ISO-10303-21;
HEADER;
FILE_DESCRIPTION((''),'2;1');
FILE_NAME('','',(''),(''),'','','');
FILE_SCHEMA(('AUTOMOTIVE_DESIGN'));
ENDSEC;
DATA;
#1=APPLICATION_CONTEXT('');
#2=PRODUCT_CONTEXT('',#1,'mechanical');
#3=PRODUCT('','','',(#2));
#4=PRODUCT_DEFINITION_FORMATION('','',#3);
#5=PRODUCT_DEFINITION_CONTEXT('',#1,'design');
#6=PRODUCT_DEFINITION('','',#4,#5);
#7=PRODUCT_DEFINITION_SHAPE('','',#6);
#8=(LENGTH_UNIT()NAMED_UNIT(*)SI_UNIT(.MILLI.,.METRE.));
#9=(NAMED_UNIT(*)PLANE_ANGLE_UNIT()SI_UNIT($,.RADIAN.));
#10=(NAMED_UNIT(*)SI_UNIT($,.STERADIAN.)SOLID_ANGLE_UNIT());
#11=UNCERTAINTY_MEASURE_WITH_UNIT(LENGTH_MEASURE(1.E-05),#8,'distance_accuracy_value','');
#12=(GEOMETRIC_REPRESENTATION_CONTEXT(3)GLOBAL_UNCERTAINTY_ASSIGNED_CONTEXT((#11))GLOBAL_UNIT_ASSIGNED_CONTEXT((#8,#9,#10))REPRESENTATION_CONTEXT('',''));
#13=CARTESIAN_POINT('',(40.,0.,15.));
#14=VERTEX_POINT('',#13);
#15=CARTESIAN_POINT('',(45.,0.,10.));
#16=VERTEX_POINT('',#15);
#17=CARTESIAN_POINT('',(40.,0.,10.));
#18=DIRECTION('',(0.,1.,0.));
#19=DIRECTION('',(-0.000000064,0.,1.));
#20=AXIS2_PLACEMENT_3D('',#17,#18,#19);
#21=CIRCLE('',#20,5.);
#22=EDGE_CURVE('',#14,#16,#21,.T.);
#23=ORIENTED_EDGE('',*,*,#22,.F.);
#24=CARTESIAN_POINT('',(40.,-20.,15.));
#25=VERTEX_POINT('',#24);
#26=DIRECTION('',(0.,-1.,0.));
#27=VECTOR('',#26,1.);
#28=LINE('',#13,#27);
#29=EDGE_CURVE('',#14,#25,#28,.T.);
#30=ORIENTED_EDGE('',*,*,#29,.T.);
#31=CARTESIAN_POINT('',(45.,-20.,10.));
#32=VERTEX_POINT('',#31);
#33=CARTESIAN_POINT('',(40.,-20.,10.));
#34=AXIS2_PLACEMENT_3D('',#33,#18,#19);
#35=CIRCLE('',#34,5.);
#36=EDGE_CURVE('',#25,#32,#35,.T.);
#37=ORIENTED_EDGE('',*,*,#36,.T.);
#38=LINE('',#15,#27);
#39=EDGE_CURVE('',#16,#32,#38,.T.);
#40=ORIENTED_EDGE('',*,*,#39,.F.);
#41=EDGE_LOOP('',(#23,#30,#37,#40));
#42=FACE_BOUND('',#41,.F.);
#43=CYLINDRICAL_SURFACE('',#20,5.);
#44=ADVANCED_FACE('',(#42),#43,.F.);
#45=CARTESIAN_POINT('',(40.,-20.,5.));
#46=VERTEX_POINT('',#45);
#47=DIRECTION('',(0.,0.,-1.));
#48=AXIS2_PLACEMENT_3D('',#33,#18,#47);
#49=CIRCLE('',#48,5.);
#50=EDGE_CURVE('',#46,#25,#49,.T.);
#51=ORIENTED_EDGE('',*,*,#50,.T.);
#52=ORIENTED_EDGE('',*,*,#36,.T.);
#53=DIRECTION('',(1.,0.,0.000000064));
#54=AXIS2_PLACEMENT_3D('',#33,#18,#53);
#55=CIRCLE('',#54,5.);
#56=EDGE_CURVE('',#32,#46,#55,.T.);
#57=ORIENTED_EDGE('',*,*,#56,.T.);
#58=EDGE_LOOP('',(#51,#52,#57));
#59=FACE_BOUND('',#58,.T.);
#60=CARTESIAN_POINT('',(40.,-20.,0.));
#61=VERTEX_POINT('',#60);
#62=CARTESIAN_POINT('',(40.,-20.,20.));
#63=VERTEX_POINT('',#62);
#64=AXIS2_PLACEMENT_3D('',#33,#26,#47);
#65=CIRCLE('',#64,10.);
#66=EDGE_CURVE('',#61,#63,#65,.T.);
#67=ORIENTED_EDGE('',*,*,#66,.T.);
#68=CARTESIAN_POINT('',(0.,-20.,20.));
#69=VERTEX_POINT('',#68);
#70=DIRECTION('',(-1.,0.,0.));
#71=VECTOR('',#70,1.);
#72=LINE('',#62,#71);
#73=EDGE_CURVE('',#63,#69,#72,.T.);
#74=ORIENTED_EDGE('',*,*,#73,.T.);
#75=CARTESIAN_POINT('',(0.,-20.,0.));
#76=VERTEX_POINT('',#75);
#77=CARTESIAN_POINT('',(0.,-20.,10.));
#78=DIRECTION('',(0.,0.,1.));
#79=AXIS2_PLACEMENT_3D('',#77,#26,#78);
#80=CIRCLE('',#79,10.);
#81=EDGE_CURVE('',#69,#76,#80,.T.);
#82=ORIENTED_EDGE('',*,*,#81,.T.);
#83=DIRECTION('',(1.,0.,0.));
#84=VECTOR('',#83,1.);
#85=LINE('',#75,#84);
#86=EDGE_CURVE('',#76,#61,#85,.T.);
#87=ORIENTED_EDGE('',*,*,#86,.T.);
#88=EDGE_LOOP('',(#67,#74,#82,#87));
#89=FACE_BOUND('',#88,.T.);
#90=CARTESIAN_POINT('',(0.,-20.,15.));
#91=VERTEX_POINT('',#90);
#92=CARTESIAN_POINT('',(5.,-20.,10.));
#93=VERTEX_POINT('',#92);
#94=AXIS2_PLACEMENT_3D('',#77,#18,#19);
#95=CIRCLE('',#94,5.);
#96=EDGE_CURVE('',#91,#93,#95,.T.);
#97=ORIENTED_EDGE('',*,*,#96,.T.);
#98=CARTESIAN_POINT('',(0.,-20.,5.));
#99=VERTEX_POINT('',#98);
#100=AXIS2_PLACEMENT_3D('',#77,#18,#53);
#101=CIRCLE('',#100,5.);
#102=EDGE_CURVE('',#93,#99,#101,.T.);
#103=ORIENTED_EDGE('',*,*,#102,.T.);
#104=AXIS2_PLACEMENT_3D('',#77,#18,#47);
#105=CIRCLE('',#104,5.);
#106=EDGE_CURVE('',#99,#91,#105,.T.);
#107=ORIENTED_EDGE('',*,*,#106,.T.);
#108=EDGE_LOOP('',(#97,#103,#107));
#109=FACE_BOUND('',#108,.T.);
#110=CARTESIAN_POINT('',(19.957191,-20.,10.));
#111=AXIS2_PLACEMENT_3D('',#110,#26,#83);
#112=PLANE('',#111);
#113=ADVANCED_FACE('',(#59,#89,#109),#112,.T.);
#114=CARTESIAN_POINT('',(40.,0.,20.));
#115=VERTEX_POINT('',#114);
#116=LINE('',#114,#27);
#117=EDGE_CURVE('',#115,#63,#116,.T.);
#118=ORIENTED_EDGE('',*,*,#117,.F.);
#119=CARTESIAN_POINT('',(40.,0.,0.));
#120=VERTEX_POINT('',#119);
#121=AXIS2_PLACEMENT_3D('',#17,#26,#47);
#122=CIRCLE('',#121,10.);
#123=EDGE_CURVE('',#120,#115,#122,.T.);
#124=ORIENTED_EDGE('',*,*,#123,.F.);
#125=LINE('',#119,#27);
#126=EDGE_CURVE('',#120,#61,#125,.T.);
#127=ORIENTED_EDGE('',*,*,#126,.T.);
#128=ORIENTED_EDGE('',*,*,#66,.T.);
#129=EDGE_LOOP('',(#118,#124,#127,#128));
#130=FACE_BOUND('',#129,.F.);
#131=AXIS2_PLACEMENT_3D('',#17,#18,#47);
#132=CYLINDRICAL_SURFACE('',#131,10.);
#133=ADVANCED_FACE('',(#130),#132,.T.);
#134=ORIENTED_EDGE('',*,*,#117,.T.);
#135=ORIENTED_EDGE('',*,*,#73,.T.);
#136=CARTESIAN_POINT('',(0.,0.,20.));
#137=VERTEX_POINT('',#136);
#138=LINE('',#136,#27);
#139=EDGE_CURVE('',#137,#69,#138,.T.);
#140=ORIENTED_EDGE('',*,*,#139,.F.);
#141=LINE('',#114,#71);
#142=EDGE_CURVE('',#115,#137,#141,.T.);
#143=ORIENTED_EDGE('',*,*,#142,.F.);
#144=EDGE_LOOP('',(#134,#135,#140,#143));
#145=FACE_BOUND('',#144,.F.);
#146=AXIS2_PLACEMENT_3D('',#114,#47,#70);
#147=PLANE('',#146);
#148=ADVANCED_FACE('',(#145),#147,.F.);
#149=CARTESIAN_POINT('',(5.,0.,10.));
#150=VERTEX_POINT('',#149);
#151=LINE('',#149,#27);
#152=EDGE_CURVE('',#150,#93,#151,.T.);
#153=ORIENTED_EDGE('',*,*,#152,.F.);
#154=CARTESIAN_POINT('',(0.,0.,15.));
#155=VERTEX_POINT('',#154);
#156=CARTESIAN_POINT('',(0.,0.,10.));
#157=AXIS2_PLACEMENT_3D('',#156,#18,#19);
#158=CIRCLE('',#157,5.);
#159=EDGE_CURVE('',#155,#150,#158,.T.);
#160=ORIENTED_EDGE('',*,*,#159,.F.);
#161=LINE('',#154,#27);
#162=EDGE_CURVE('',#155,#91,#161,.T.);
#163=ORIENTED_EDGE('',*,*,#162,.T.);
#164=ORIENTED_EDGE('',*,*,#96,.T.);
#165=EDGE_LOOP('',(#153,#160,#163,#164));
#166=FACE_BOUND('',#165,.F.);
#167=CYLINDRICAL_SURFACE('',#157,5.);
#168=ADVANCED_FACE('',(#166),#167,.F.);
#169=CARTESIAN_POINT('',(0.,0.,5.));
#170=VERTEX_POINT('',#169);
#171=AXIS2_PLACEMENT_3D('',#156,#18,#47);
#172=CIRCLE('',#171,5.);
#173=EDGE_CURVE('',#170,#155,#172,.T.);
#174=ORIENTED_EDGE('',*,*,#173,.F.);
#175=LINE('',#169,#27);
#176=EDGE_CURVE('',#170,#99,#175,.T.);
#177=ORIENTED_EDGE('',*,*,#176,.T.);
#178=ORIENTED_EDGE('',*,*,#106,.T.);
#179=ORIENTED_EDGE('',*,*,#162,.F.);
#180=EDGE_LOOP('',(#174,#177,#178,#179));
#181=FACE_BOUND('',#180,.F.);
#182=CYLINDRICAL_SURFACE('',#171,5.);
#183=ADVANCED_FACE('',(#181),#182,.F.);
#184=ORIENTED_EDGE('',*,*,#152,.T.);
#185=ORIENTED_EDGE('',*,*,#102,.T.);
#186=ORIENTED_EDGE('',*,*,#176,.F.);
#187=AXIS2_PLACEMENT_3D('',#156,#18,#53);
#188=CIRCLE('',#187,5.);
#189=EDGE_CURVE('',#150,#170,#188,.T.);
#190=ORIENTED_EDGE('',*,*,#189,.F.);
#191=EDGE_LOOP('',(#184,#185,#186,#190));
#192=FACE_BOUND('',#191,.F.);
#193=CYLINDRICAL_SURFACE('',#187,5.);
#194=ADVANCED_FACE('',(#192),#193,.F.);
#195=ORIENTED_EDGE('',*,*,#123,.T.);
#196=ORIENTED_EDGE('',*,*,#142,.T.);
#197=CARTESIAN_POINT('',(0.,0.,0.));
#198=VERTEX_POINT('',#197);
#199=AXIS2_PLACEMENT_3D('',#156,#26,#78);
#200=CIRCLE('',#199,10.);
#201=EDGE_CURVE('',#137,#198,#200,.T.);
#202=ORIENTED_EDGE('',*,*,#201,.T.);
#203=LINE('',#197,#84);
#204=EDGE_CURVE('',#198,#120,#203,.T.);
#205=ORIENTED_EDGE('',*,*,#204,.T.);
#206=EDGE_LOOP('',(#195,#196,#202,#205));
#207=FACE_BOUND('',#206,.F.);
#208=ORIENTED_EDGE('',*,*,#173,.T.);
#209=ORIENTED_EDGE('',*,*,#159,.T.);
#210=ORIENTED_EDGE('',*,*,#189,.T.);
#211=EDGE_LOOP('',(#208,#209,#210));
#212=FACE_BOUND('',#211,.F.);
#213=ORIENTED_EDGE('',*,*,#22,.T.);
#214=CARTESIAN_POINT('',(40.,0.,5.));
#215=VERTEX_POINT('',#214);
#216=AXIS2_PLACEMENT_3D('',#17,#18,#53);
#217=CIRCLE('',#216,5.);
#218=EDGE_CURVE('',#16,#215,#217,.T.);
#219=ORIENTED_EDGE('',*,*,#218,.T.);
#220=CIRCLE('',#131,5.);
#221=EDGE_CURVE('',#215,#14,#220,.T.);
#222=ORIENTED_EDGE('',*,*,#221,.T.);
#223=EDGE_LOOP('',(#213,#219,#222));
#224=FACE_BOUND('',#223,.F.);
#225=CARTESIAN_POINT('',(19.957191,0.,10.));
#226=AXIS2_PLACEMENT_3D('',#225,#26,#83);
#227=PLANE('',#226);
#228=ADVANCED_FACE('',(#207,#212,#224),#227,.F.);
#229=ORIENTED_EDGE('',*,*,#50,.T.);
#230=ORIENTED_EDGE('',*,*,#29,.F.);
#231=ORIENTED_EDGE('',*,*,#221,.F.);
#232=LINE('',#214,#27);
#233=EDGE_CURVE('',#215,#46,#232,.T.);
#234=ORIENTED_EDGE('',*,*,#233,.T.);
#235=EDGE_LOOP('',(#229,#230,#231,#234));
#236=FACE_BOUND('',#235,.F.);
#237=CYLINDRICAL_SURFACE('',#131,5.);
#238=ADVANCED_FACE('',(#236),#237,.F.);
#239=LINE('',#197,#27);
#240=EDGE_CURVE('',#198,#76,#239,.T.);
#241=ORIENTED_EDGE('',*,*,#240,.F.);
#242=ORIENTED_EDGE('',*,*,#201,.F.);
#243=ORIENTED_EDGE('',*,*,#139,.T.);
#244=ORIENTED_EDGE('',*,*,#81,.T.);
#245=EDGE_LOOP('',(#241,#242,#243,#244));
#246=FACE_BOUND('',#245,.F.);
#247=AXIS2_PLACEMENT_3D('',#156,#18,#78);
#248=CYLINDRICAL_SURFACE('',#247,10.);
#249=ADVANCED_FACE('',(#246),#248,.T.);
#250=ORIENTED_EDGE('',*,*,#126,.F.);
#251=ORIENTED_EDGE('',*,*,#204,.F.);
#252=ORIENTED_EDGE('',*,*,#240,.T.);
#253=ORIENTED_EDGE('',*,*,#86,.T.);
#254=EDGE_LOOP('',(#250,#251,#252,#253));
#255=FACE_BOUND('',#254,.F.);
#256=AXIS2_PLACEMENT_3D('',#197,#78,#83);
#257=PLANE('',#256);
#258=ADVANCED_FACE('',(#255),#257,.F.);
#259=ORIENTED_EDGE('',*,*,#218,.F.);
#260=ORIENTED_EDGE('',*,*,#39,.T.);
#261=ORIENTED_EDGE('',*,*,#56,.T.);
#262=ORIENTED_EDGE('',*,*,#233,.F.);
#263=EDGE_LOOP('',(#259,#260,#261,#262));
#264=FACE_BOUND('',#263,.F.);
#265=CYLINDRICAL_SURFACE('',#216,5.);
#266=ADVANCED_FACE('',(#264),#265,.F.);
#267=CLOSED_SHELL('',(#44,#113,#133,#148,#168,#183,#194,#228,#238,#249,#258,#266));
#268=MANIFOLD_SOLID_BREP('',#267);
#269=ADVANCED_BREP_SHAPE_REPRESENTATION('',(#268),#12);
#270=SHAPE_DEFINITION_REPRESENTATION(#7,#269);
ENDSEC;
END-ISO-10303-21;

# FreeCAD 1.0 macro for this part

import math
import FreeCAD as App
import Part
import Sketcher
Q = App.Units.Quantity

doc = App.newDocument("Part")
body = doc.addObject("PartDesign::Body", "Body")

sketch1 = body.newObject("Sketcher::SketchObject", "Sketch")
sketch1.AttachmentSupport = (doc.getObject("XZ_Plane"), [""])
sketch1.MapMode = "FlatFace"
sketch1.addGeometry([
    Part.LineSegment(App.Vector(0, 0, 0), App.Vector(40, 0, 0)),
    Part.ArcOfCircle(Part.Circle(App.Vector(40, 10, 0), App.Vector(0, 0, 1), 10), math.radians(-90), math.radians(90)),
    Part.LineSegment(App.Vector(40, 20, 0), App.Vector(0, 20, 0)),
    Part.ArcOfCircle(Part.Circle(App.Vector(0, 10, 0), App.Vector(0, 0, 1), 10), math.radians(90), math.radians(270)),
    Part.ArcOfCircle(Part.Circle(App.Vector(40, 10, 0), App.Vector(0, 0, 1), 5), math.radians(90), math.radians(270)),
    Part.ArcOfCircle(Part.Circle(App.Vector(40, 10, 0), App.Vector(0, 0, 1), 5), math.radians(0), math.radians(90)),
    Part.ArcOfCircle(Part.Circle(App.Vector(40, 10, 0), App.Vector(0, 0, 1), 5), math.radians(-90), math.radians(0)),
    Part.ArcOfCircle(Part.Circle(App.Vector(0, 10, 0), App.Vector(0, 0, 1), 5), math.radians(0), math.radians(90)),
    Part.ArcOfCircle(Part.Circle(App.Vector(0, 10, 0), App.Vector(0, 0, 1), 5), math.radians(-90), math.radians(0)),
    Part.ArcOfCircle(Part.Circle(App.Vector(0, 10, 0), App.Vector(0, 0, 1), 5), math.radians(90), math.radians(270)),
], False)
sketch1.addConstraint([
    Sketcher.Constraint("Tangent", 0, 2, 1, 1),
    Sketcher.Constraint("Tangent", 1, 2, 2, 1),
    Sketcher.Constraint("Tangent", 2, 2, 3, 1),
    Sketcher.Constraint("Tangent", 3, 2, 0, 1),
    Sketcher.Constraint("Tangent", 4, 1, 5, 2),
    Sketcher.Constraint("Tangent", 5, 1, 6, 2),
    Sketcher.Constraint("Tangent", 6, 1, 4, 2),
    Sketcher.Constraint("Tangent", 7, 1, 8, 2),
    Sketcher.Constraint("Tangent", 8, 1, 9, 2),
    Sketcher.Constraint("Tangent", 9, 1, 7, 2),
    Sketcher.Constraint("Horizontal", 0),
    Sketcher.Constraint("Horizontal", 2),
    Sketcher.Constraint("Coincident", 3, 2, -1, 1),
    Sketcher.Constraint("Coincident", 4, 3, 1, 3),
    Sketcher.Constraint("Coincident", 7, 3, 3, 3),
    Sketcher.Constraint("Equal", 6, 7),
    Sketcher.Constraint("PointOnObject", 8, 1, -2),
    Sketcher.Constraint("PointOnObject", 9, 1, -2),
    Sketcher.Constraint("Horizontal", 9, 3, 5, 1),
    Sketcher.Constraint("Horizontal", 5, 1, 7, 1),
    Sketcher.Constraint("Vertical", 1, 2, 4, 1),
    Sketcher.Constraint("Vertical", 4, 1, 6, 1),
    Sketcher.Constraint("Radius", 1, Q("10 mm")),
    Sketcher.Constraint("Radius", 4, Q("5 mm")),
    Sketcher.Constraint("DistanceX", 0, 1, 0, 2, Q("40 mm")),
])
pad1 = body.newObject("PartDesign::Pad", "Pad")
pad1.Profile = sketch1
pad1.Length = 20

doc.recompute()
